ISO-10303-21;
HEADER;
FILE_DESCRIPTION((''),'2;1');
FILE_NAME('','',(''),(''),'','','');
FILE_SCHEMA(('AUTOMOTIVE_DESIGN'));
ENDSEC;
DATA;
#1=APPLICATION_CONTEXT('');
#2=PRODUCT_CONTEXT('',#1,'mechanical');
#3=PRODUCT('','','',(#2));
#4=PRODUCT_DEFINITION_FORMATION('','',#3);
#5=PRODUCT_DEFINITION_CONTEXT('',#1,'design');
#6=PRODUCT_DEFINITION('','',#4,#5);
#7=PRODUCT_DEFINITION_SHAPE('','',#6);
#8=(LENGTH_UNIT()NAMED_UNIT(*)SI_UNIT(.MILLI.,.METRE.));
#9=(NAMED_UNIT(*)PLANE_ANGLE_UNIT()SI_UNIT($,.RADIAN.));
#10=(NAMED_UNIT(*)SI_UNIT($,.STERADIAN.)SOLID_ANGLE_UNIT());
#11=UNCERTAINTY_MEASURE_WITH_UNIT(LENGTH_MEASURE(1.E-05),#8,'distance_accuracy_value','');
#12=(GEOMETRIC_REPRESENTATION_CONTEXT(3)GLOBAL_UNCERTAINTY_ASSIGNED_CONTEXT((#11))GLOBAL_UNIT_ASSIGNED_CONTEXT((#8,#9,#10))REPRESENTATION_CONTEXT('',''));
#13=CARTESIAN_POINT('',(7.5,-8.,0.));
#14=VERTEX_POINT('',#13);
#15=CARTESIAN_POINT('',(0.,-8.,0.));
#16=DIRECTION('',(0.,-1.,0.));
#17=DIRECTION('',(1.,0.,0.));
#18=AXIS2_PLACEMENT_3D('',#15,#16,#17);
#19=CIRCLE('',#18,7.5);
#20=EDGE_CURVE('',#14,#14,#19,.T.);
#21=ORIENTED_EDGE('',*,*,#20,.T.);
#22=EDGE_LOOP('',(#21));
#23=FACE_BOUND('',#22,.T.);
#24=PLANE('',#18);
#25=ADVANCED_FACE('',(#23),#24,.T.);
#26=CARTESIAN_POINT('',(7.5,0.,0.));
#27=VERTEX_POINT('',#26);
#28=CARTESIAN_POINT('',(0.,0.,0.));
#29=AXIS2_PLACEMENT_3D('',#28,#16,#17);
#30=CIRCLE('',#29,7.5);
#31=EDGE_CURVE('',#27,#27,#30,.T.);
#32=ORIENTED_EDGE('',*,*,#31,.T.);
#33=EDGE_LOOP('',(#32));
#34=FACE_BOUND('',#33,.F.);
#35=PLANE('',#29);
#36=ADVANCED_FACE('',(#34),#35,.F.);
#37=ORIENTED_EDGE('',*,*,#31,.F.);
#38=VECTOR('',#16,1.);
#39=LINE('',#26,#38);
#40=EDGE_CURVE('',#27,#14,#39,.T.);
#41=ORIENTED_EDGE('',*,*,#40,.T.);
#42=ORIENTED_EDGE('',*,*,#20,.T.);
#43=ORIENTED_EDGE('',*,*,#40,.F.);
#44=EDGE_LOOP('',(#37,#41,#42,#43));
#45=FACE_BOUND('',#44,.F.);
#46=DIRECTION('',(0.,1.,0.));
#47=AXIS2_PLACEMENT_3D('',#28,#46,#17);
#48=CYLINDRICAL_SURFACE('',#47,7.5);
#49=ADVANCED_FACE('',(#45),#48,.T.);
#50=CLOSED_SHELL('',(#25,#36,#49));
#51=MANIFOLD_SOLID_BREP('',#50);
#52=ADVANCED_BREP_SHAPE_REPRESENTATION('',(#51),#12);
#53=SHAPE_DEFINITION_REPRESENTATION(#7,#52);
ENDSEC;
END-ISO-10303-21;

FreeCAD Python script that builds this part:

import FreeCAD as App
import Part
import Sketcher
from FreeCAD import Vector
Q = App.Units.Quantity

doc = App.newDocument("Part")
body = doc.addObject("PartDesign::Body", "Body")

# Sketch on XZ plane
sketch1 = doc.addObject("Sketcher::SketchObject", "Sketch")
body.addObject(sketch1)
sketch1.AttachmentSupport = (doc.XZ_Plane, [""])
sketch1.MapMode = "FlatFace"
sketch1.addGeometry(Part.Circle(Vector(0, 0, 0), Vector(0, 0, 1), 8), False)
sketch1.addConstraint(Sketcher.Constraint("Coincident", 0, 3, -1, 1))
sketch1.addConstraint(Sketcher.Constraint("Diameter", 0, Q("15 mm")))
pad1 = doc.addObject("PartDesign::Pad", "Pad")
body.addObject(pad1)
pad1.Profile = sketch1
pad1.Length = 8

doc.recompute()
